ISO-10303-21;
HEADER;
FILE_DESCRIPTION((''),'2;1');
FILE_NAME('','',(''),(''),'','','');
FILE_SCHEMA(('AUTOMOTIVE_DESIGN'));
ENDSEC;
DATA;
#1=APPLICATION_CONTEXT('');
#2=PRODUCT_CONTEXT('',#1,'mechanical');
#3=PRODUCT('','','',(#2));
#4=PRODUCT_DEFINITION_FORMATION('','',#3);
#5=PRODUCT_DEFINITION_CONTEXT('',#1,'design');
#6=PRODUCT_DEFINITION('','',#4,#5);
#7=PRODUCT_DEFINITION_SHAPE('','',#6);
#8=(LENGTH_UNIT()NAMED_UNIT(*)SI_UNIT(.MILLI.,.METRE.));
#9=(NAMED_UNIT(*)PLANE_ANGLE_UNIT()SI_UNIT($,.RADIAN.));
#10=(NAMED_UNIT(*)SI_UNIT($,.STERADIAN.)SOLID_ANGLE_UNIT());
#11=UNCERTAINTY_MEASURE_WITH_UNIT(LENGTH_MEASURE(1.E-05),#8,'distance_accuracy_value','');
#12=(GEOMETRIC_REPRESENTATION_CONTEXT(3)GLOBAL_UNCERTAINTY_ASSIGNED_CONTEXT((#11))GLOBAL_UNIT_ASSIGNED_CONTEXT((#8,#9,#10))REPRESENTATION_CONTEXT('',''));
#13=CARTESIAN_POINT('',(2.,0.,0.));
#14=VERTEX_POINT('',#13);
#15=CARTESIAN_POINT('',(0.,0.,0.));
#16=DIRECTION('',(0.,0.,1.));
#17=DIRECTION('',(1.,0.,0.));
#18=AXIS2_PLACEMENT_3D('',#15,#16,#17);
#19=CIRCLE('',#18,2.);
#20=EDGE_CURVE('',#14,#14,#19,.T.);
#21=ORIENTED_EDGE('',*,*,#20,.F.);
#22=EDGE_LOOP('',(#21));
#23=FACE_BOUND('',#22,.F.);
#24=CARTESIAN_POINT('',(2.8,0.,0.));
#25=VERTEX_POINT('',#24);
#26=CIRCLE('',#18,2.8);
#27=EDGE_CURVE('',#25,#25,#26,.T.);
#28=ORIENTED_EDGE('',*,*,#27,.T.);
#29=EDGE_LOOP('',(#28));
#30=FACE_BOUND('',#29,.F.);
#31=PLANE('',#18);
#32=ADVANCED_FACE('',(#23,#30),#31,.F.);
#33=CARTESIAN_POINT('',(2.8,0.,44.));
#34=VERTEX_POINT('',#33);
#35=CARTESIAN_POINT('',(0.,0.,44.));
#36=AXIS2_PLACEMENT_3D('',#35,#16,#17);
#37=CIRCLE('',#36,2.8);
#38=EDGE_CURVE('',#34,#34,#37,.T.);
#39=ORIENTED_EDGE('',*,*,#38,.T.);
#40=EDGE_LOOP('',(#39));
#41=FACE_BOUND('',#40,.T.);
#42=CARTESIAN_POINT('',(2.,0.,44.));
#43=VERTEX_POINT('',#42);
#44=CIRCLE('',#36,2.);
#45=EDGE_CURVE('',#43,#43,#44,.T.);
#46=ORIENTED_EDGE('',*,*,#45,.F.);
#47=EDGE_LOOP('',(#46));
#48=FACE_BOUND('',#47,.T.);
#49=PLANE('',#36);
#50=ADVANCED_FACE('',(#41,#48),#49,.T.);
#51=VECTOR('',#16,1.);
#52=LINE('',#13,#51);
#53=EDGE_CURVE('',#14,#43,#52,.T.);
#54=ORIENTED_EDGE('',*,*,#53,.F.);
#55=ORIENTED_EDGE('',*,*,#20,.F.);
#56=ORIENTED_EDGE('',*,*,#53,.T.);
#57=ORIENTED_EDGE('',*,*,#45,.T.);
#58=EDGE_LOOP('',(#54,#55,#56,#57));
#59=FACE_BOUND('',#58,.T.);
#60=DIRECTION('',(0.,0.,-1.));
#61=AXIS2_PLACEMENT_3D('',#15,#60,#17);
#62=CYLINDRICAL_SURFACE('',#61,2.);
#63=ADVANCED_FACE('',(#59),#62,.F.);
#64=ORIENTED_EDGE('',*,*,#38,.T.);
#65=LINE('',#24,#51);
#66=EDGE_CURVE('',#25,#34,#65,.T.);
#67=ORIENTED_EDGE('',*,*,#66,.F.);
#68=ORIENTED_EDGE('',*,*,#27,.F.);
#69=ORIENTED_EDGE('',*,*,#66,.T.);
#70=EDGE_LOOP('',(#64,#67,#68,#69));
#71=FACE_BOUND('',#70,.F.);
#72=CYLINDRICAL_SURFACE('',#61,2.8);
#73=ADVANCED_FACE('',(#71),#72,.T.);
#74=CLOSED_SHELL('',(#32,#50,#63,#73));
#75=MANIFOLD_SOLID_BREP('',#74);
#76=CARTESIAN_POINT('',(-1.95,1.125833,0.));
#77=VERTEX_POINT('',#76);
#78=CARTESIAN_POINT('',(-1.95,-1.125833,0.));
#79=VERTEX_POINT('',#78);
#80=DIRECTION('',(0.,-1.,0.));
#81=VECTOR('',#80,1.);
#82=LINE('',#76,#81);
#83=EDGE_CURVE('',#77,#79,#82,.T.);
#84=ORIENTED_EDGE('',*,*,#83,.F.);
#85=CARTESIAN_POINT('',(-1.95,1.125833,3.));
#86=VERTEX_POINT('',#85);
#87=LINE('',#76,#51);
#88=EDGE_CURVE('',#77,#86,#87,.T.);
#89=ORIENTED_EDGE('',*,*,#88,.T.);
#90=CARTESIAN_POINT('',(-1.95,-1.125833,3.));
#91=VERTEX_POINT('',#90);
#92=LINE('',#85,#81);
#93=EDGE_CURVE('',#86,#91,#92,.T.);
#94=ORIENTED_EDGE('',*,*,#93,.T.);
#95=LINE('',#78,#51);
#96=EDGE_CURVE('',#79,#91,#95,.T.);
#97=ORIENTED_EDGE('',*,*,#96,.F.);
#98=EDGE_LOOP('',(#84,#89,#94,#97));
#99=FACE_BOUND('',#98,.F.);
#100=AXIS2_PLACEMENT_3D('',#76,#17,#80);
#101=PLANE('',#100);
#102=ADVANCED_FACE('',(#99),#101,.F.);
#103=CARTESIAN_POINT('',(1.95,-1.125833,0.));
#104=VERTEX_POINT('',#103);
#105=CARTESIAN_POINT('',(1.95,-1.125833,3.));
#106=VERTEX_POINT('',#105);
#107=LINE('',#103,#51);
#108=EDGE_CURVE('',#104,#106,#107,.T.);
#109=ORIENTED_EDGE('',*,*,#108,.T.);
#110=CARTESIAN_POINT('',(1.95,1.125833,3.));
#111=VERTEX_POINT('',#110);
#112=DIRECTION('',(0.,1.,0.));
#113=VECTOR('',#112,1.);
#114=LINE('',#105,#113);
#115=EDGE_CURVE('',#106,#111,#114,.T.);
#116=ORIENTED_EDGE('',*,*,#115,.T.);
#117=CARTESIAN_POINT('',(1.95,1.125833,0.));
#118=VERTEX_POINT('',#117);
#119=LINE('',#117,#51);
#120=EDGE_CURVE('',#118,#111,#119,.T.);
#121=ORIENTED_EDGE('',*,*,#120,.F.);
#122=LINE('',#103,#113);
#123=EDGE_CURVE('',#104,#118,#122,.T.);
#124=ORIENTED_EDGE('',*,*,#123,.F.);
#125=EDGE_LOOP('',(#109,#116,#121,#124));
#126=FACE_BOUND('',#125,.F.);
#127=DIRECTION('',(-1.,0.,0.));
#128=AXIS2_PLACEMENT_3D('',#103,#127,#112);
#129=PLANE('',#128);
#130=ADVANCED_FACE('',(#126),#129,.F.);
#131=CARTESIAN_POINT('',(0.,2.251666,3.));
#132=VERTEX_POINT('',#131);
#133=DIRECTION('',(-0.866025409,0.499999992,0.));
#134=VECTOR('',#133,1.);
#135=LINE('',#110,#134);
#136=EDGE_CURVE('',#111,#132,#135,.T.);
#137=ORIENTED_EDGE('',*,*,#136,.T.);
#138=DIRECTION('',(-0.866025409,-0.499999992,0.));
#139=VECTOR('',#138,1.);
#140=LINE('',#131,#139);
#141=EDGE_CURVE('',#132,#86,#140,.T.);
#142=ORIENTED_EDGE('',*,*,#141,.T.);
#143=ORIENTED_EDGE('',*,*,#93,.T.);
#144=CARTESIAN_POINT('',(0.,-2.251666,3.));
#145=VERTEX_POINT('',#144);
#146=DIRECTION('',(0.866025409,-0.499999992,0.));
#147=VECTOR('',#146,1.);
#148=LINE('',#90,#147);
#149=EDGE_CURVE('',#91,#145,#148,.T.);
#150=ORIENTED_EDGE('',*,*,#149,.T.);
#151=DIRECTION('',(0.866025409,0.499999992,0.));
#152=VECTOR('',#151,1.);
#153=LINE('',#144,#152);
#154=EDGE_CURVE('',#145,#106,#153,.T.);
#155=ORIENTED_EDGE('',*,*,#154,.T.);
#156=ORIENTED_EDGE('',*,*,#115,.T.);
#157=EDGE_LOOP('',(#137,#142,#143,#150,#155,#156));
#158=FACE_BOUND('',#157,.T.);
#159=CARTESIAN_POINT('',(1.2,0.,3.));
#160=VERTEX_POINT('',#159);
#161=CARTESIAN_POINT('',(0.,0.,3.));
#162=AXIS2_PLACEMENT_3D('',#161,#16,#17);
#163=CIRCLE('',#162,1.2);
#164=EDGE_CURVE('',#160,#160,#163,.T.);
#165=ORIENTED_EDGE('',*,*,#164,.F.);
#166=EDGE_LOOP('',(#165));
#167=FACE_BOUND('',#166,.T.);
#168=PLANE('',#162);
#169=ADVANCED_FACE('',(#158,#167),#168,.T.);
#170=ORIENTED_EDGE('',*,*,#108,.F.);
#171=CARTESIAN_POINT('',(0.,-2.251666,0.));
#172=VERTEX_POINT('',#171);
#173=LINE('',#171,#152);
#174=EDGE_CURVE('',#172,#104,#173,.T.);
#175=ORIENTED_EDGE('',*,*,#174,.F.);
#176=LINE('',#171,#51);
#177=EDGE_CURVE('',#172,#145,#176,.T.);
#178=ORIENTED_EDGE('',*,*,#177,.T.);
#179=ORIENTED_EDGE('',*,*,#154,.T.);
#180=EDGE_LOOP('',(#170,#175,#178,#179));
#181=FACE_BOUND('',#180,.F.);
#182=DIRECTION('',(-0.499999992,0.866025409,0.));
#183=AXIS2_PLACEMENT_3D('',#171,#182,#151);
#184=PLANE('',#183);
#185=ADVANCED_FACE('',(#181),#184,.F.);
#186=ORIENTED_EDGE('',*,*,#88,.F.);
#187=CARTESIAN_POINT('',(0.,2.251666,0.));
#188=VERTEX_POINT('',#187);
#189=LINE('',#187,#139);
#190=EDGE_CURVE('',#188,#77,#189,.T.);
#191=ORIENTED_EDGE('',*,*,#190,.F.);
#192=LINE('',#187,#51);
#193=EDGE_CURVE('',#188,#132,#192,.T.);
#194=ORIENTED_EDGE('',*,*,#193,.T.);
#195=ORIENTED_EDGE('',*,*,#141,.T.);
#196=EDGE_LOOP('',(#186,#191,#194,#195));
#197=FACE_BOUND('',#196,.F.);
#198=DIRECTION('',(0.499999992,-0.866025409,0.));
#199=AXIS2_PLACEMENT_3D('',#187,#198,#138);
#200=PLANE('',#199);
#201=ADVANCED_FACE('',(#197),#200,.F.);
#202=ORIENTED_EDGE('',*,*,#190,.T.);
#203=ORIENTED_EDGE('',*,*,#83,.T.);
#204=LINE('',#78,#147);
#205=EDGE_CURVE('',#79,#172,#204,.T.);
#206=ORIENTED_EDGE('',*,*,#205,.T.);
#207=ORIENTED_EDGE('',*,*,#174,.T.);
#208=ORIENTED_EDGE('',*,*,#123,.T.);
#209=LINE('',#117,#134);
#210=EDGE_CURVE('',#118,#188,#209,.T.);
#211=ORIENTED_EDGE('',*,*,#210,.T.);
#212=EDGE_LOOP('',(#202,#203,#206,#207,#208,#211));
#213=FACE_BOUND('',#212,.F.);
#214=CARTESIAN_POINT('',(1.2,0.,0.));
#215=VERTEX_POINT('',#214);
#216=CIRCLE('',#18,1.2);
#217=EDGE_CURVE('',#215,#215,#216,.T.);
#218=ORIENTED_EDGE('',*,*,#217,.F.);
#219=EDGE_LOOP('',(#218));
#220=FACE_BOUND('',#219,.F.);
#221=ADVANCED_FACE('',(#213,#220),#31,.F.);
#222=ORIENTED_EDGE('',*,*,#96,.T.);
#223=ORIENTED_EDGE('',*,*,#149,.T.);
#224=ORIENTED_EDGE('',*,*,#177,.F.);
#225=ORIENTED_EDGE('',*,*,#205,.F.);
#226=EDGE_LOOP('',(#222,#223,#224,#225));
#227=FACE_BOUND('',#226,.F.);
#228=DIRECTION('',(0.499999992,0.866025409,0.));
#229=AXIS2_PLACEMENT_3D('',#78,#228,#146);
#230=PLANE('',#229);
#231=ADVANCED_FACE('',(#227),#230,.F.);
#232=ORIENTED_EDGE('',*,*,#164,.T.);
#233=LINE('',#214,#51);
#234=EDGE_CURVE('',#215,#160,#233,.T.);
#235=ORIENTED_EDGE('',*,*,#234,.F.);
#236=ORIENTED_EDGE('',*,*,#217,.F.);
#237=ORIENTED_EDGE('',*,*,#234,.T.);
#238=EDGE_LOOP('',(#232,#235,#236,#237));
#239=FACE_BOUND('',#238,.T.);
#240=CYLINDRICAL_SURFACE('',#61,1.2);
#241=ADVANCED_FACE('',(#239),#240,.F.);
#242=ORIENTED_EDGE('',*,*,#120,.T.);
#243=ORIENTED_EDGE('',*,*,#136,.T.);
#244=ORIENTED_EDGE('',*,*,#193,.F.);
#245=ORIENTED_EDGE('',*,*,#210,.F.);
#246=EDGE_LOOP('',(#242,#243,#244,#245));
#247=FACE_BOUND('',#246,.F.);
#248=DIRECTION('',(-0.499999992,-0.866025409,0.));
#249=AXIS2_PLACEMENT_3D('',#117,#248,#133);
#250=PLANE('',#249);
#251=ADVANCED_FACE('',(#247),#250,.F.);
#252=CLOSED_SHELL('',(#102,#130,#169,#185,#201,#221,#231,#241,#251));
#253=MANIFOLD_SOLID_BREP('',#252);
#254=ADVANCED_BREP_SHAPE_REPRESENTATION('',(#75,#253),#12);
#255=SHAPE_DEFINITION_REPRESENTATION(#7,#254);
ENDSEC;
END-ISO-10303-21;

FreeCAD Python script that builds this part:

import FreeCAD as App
import Part
import Sketcher
from FreeCAD import Vector
Q = App.Units.Quantity

doc = App.newDocument("Part")
body = doc.addObject("PartDesign::Body", "Body")

sketch1 = body.newObject("Sketcher::SketchObject", "Sketch")
sketch1.AttachmentSupport = (doc.getObject("XY_Plane"), [""])
sketch1.MapMode = "FlatFace"
sketch1.addGeometry([
    Part.LineSegment(Vector(1.9, -1.1, 0), Vector(1.9, 1.1, 0)),
    Part.LineSegment(Vector(1.9, 1.1, 0), Vector(0, 2.3, 0)),
    Part.LineSegment(Vector(0, 2.3, 0), Vector(-1.9, 1.1, 0)),
    Part.LineSegment(Vector(-1.9, 1.1, 0), Vector(-1.9, -1.1, 0)),
    Part.LineSegment(Vector(-1.9, -1.1, 0), Vector(0, -2.3, 0)),
    Part.LineSegment(Vector(0, -2.3, 0), Vector(1.9, -1.1, 0)),
    Part.Circle(Vector(0, 0, 0), Vector(0, 0, 1), 1.2),
], False)
sketch1.addConstraint([
    Sketcher.Constraint("Coincident", 0, 2, 1, 1),
    Sketcher.Constraint("Coincident", 1, 2, 2, 1),
    Sketcher.Constraint("Coincident", 2, 2, 3, 1),
    Sketcher.Constraint("Coincident", 3, 2, 4, 1),
    Sketcher.Constraint("Coincident", 4, 2, 5, 1),
    Sketcher.Constraint("Coincident", 5, 2, 0, 1),
    Sketcher.Constraint("Vertical", 0),
    Sketcher.Constraint("Vertical", 3),
    Sketcher.Constraint("Coincident", 6, 3, -1, 1),
    Sketcher.Constraint("Symmetric", 0, 2, 3, 2, -1, 1),
    Sketcher.Constraint("Symmetric", 1, 2, 4, 2, -1, 1),
    Sketcher.Constraint("PointOnObject", 1, 2, -2),
    Sketcher.Constraint("Parallel", 2, 5),
    Sketcher.Constraint("Horizontal", 0, 2, 2, 2),
    Sketcher.Constraint("Diameter", 6, Q("2.4 mm")),
    Sketcher.Constraint("Angle", 1, Q("150.000001 deg")),
    Sketcher.Constraint("DistanceX", 2, 2, 0, 2, Q("3.9 mm")),
    Sketcher.Constraint("DistanceY", 3, 2, 1, 2, Q("3.377499 mm")),
])
pad1 = body.newObject("PartDesign::Pad", "Pad")
pad1.Profile = sketch1
pad1.Length = 3
body2 = doc.addObject("PartDesign::Body", "Body001")

sketch2 = body2.newObject("Sketcher::SketchObject", "Sketch001")
sketch2.AttachmentSupport = (doc.getObject("XY_Plane001"), [""])
sketch2.MapMode = "FlatFace"
sketch2.addGeometry([
    Part.Circle(Vector(0, 0, 0), Vector(0, 0, 1), 2.8),
    Part.Circle(Vector(0, 0, 0), Vector(0, 0, 1), 2),
], False)
sketch2.addConstraint([
    Sketcher.Constraint("Coincident", 0, 3, -1, 1),
    Sketcher.Constraint("Coincident", 1, 3, -1, 1),
    Sketcher.Constraint("Diameter", 1, Q("4 mm")),
    Sketcher.Constraint("Diameter", 0, Q("5.6 mm")),
])
pad2 = body2.newObject("PartDesign::Pad", "Pad001")
pad2.Profile = sketch2
pad2.Length = 44

doc.recompute()
